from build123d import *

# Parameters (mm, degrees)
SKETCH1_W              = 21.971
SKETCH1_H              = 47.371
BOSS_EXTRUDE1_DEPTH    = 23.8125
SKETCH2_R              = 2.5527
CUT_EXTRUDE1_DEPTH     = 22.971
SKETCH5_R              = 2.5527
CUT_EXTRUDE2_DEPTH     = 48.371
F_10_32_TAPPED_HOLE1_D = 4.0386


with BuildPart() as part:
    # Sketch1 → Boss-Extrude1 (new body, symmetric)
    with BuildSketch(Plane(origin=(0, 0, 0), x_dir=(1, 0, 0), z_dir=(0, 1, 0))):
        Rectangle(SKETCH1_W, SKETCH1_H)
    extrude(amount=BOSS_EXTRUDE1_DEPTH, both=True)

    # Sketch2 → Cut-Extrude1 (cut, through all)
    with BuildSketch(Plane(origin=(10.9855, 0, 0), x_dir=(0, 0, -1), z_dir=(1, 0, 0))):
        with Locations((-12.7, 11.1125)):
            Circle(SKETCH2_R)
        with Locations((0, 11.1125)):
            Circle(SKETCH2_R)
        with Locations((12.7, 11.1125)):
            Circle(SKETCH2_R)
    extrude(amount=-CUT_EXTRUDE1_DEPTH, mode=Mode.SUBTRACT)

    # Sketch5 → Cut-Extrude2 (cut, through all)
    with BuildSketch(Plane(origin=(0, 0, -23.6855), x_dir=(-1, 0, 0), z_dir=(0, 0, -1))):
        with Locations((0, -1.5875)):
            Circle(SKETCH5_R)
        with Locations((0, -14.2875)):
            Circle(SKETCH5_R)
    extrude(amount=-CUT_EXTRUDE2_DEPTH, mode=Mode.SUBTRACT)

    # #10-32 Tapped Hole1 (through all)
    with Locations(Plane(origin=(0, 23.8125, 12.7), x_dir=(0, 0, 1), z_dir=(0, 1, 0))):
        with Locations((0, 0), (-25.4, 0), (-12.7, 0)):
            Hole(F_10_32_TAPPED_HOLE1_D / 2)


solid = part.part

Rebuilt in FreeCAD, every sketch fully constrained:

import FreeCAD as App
import Part
import Sketcher
from FreeCAD import Vector
Q = App.Units.Quantity


def add_polygon(sketch, points):
    """Adds a closed chain of lines whose ends are joined by coincident constraints."""
    first, n = sketch.GeometryCount, len(points)
    for a, b in zip(points, points[1:] + points[:1]):
        sketch.addGeometry(Part.LineSegment(App.Vector(*a, 0), App.Vector(*b, 0)), False)
    for i in range(n):
        sketch.addConstraint(Sketcher.Constraint("Coincident", first + i, 2, first + (i + 1) % n, 1))

doc = App.newDocument("Part")
body = doc.addObject("PartDesign::Body", "Body")

# Sketch on XZ plane
sketch1 = body.newObject("Sketcher::SketchObject", "Sketch")
sketch1.AttachmentSupport = (doc.getObject("XZ_Plane"), [""])
sketch1.MapMode = "FlatFace"
add_polygon(sketch1, [(-10.9855, -23.6855), (-10.9855, 23.6855), (10.9855, 23.6855), (10.9855, -23.6855)])  # lines 0-3
sketch1.addConstraint([
    Sketcher.Constraint("Vertical", 0),
    Sketcher.Constraint("Horizontal", 1),
    Sketcher.Constraint("Vertical", 2),
    Sketcher.Constraint("Horizontal", 3),
    Sketcher.Constraint("Symmetric", 0, 2, 2, 2, -1, 1),
    Sketcher.Constraint("DistanceX", 1, 1, 1, 2, Q("0.865 in")),
    Sketcher.Constraint("DistanceY", 0, 1, 0, 2, Q("1.865 in")),
])
pad1 = body.newObject("PartDesign::Pad", "Pad")
pad1.Profile = sketch1
pad1.Length = Q("1.875 in")
pad1.Midplane = True

# Sketch on YZ plane
sketch2 = body.newObject("Sketcher::SketchObject", "Sketch001")
sketch2.AttachmentSupport = (doc.getObject("YZ_Plane"), [""])
sketch2.MapMode = "FlatFace"
sketch2.AttachmentOffset = App.Placement(Vector(0, 0, 0.4325 * 25.4), App.Rotation())
sketch2.addGeometry([
    Part.Circle(Vector(11.1125, 12.7, 0), Vector(0, 0, 1), 2.5527),
    Part.Circle(Vector(11.1125, 0, 0), Vector(0, 0, 1), 2.5527),
    Part.Circle(Vector(11.1125, -12.7, 0), Vector(0, 0, 1), 2.5527),
], False)
sketch2.addConstraint([
    Sketcher.Constraint("Equal", 0, 1),
    Sketcher.Constraint("Equal", 1, 2),
    Sketcher.Constraint("Symmetric", 0, 3, 2, 3, -1),
    Sketcher.Constraint("PointOnObject", 1, 3, -1),
    Sketcher.Constraint("Vertical", 0, 3, 1, 3),
    Sketcher.Constraint("Diameter", 0, Q("0.201 in")),
    Sketcher.Constraint("DistanceY", 2, 3, 0, 3, Q("1 in")),
    Sketcher.Constraint("DistanceX", -1, 1, 0, 3, Q("0.4375 in")),
])
pocket1 = body.newObject("PartDesign::Pocket", "Pocket")
pocket1.Profile = sketch2
pocket1.Type = "ThroughAll"

# Sketch on XY plane
sketch3 = body.newObject("Sketcher::SketchObject", "Sketch002")
sketch3.AttachmentSupport = (doc.getObject("XY_Plane"), [""])
sketch3.MapMode = "FlatFace"
sketch3.AttachmentOffset = App.Placement(Vector(0, 0, -0.9325 * 25.4), App.Rotation())
sketch3.addGeometry([
    Part.Circle(Vector(0, -1.5875, 0), Vector(0, 0, 1), 2.5527),
    Part.Circle(Vector(0, -14.2875, 0), Vector(0, 0, 1), 2.5527),
], False)
sketch3.addConstraint([
    Sketcher.Constraint("Equal", 0, 1),
    Sketcher.Constraint("PointOnObject", 0, 3, -2),
    Sketcher.Constraint("PointOnObject", 1, 3, -2),
    Sketcher.Constraint("Diameter", 0, Q("0.201 in")),
    Sketcher.Constraint("DistanceY", 1, 3, 0, 3, Q("0.5 in")),
    Sketcher.Constraint("DistanceY", 0, 3, -1, 1, Q("0.0625 in")),
])
pocket2 = body.newObject("PartDesign::Pocket", "Pocket001")
pocket2.Profile = sketch3
pocket2.Type = "ThroughAll"
pocket2.Reversed = True

# Sketch on XZ plane
sketch4 = body.newObject("Sketcher::SketchObject", "Sketch003")
sketch4.AttachmentSupport = (doc.getObject("XZ_Plane"), [""])
sketch4.MapMode = "FlatFace"
sketch4.AttachmentOffset = App.Placement(Vector(0, 0, -0.9375 * 25.4), App.Rotation())
sketch4.addGeometry([
    Part.Circle(Vector(0, 12.7, 0), Vector(0, 0, 1), 2.0193),
    Part.Circle(Vector(0, -12.7, 0), Vector(0, 0, 1), 2.0193),
    Part.Circle(Vector(0, 0, 0), Vector(0, 0, 1), 2.0193),
], False)
sketch4.addConstraint([
    Sketcher.Constraint("Coincident", 2, 3, -1, 1),
    Sketcher.Constraint("Equal", 0, 1),
    Sketcher.Constraint("Equal", 1, 2),
    Sketcher.Constraint("Symmetric", 0, 3, 1, 3, -1, 1),
    Sketcher.Constraint("PointOnObject", 0, 3, -2),
    Sketcher.Constraint("Diameter", 0, Q("0.159 in")),
    Sketcher.Constraint("DistanceY", 1, 3, 0, 3, Q("1 in")),
])
doc.recompute()
hole = body.newObject("PartDesign::Hole", "Hole")
hole.Profile = sketch4
hole.ThreadType = "None"
hole.Diameter = Q("0.159 in")
hole.DepthType = "ThroughAll"
hole.Reversed = True

doc.recompute()
